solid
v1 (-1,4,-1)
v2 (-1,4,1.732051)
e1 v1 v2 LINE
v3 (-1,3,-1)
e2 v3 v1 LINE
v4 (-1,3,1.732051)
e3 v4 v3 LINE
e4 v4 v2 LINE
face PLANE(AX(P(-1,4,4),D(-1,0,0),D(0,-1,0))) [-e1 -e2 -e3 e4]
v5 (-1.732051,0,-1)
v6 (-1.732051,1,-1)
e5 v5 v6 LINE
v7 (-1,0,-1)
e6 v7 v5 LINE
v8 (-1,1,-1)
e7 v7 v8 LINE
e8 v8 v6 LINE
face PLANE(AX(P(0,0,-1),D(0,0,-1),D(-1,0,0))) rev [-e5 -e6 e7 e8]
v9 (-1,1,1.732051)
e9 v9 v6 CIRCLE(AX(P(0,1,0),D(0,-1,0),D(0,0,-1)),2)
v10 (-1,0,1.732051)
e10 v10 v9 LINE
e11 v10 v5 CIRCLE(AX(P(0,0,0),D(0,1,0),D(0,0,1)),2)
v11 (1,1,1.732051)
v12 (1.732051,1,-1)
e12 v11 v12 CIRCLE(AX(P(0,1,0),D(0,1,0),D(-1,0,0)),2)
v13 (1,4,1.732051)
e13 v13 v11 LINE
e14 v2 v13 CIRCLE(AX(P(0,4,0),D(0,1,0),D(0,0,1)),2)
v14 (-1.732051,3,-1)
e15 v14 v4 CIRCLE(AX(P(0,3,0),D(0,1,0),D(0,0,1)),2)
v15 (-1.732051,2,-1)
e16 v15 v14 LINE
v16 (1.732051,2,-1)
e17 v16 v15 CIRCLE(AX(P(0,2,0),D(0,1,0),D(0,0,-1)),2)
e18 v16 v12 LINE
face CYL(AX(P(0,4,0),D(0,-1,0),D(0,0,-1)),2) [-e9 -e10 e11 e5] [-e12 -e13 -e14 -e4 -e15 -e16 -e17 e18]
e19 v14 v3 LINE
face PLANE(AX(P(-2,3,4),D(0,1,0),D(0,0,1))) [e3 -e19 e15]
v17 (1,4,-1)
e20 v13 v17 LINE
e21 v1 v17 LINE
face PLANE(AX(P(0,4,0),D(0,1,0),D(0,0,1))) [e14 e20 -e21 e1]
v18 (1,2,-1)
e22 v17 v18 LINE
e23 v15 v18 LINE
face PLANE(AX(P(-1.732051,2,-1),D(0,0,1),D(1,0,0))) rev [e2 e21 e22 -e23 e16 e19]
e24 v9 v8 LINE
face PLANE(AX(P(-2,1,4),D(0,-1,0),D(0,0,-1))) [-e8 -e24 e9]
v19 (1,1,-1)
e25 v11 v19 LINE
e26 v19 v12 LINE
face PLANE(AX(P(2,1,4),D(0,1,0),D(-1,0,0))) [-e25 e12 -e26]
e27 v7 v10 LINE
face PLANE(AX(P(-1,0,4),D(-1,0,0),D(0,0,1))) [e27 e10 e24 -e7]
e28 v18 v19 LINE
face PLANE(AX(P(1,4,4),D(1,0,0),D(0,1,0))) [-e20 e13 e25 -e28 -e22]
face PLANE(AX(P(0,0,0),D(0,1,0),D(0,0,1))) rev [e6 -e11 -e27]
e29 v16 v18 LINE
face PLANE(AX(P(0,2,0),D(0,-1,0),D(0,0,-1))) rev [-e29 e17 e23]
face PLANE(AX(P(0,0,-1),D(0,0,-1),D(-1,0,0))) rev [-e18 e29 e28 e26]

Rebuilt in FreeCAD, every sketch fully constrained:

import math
import FreeCAD as App
import Part
import Sketcher
from FreeCAD import Vector

doc = App.newDocument("Part")
body = doc.addObject("PartDesign::Body", "Body")

sketch1 = body.newObject("Sketcher::SketchObject", "Sketch")
sketch1.AttachmentSupport = (doc.getObject("XZ_Plane"), [""])
sketch1.MapMode = "FlatFace"
sketch1.addGeometry(Part.Circle(Vector(0, 0, 0), Vector(0, 0, 1), 2), False)
sketch1.addConstraint([
    Sketcher.Constraint("Coincident", 0, 3, -1, 1),
    Sketcher.Constraint("Diameter", 0, 4.0),
])
pad1 = body.newObject("PartDesign::Pad", "Pad")
pad1.Profile = sketch1
pad1.Length = 4
pad1.Reversed = True

sketch2 = body.newObject("Sketcher::SketchObject", "Sketch001")
sketch2.AttachmentSupport = (doc.getObject("XY_Plane"), [""])
sketch2.MapMode = "FlatFace"
sketch2.addGeometry([
    Part.LineSegment(Vector(-2, 4, 0), Vector(-2, 3, 0)),
    Part.LineSegment(Vector(-2, 3, 0), Vector(-1, 3, 0)),
    Part.LineSegment(Vector(-1, 3, 0), Vector(-1, 4, 0)),
    Part.LineSegment(Vector(-1, 4, 0), Vector(-2, 4, 0)),
    Part.LineSegment(Vector(1, 4, 0), Vector(1, 1, 0)),
    Part.LineSegment(Vector(1, 1, 0), Vector(2, 1, 0)),
    Part.LineSegment(Vector(2, 1, 0), Vector(2, 4, 0)),
    Part.LineSegment(Vector(2, 4, 0), Vector(1, 4, 0)),
    Part.LineSegment(Vector(-2, 1, 0), Vector(-2, 0, 0)),
    Part.LineSegment(Vector(-2, 0, 0), Vector(-1, 0, 0)),
    Part.LineSegment(Vector(-1, 0, 0), Vector(-1, 1, 0)),
    Part.LineSegment(Vector(-1, 1, 0), Vector(-2, 1, 0)),
], False)
sketch2.addConstraint([
    Sketcher.Constraint("Coincident", 0, 2, 1, 1),
    Sketcher.Constraint("Coincident", 1, 2, 2, 1),
    Sketcher.Constraint("Coincident", 2, 2, 3, 1),
    Sketcher.Constraint("Coincident", 3, 2, 0, 1),
    Sketcher.Constraint("Coincident", 4, 2, 5, 1),
    Sketcher.Constraint("Coincident", 5, 2, 6, 1),
    Sketcher.Constraint("Coincident", 6, 2, 7, 1),
    Sketcher.Constraint("Coincident", 7, 2, 4, 1),
    Sketcher.Constraint("Coincident", 8, 2, 9, 1),
    Sketcher.Constraint("Coincident", 9, 2, 10, 1),
    Sketcher.Constraint("Coincident", 10, 2, 11, 1),
    Sketcher.Constraint("Coincident", 11, 2, 8, 1),
    Sketcher.Constraint("Vertical", 0),
    Sketcher.Constraint("Horizontal", 1),
    Sketcher.Constraint("Vertical", 2),
    Sketcher.Constraint("Horizontal", 3),
    Sketcher.Constraint("Vertical", 4),
    Sketcher.Constraint("Horizontal", 5),
    Sketcher.Constraint("Vertical", 6),
    Sketcher.Constraint("Horizontal", 7),
    Sketcher.Constraint("Vertical", 8),
    Sketcher.Constraint("Horizontal", 9),
    Sketcher.Constraint("Vertical", 10),
    Sketcher.Constraint("Horizontal", 11),
    Sketcher.Constraint("Symmetric", 3, 2, 6, 2, -2),
    Sketcher.Constraint("Symmetric", 4, 2, 10, 2, -2),
    Sketcher.Constraint("PointOnObject", 8, 2, -1),
    Sketcher.Constraint("Vertical", 3, 2, 8, 2),
    Sketcher.Constraint("Vertical", 2, 2, 9, 2),
    Sketcher.Constraint("Equal", 11, 0),
    Sketcher.Constraint("Equal", 2, 8),
    Sketcher.Constraint("DistanceX", 1, 1, 1, 2, 1.0),
    Sketcher.Constraint("DistanceY", 4, 2, 4, 1, 3.0),
    Sketcher.Constraint("DistanceX", 0, 2, -1, 1, 2.0),
])
pocket1 = body.newObject("PartDesign::Pocket", "Pocket")
pocket1.Profile = sketch2
pocket1.Type = "TwoLengths"
pocket1.Length = 4
pocket1.Length2 = 1
pocket1.Reversed = True

sketch3 = body.newObject("Sketcher::SketchObject", "Sketch002")
sketch3.AttachmentSupport = (doc.getObject("XZ_Plane"), [""])
sketch3.MapMode = "FlatFace"
sketch3.AttachmentOffset = App.Placement(Vector(0, 0, -4), App.Rotation())
sketch3.addGeometry([
    Part.LineSegment(Vector(-1.732051, -1, 0), Vector(1.732051, -1, 0)),
    Part.ArcOfCircle(Part.Circle(Vector(0, 0, 0), Vector(0, 0, 1), 2), math.radians(-150), math.radians(-30)),
], False)
sketch3.addConstraint([
    Sketcher.Constraint("Coincident", 0, 1, 1, 1),
    Sketcher.Constraint("Coincident", 1, 2, 0, 2),
    Sketcher.Constraint("Horizontal", 0),
    Sketcher.Constraint("Coincident", 1, 3, -1, 1),
    Sketcher.Constraint("Radius", 1, 2.0),
    Sketcher.Constraint("DistanceY", 0, 1, -1, 1, 1.0),
])
pocket2 = body.newObject("PartDesign::Pocket", "Pocket001")
pocket2.Profile = sketch3
pocket2.Length = 2
pocket2.Reversed = True

doc.recompute()
